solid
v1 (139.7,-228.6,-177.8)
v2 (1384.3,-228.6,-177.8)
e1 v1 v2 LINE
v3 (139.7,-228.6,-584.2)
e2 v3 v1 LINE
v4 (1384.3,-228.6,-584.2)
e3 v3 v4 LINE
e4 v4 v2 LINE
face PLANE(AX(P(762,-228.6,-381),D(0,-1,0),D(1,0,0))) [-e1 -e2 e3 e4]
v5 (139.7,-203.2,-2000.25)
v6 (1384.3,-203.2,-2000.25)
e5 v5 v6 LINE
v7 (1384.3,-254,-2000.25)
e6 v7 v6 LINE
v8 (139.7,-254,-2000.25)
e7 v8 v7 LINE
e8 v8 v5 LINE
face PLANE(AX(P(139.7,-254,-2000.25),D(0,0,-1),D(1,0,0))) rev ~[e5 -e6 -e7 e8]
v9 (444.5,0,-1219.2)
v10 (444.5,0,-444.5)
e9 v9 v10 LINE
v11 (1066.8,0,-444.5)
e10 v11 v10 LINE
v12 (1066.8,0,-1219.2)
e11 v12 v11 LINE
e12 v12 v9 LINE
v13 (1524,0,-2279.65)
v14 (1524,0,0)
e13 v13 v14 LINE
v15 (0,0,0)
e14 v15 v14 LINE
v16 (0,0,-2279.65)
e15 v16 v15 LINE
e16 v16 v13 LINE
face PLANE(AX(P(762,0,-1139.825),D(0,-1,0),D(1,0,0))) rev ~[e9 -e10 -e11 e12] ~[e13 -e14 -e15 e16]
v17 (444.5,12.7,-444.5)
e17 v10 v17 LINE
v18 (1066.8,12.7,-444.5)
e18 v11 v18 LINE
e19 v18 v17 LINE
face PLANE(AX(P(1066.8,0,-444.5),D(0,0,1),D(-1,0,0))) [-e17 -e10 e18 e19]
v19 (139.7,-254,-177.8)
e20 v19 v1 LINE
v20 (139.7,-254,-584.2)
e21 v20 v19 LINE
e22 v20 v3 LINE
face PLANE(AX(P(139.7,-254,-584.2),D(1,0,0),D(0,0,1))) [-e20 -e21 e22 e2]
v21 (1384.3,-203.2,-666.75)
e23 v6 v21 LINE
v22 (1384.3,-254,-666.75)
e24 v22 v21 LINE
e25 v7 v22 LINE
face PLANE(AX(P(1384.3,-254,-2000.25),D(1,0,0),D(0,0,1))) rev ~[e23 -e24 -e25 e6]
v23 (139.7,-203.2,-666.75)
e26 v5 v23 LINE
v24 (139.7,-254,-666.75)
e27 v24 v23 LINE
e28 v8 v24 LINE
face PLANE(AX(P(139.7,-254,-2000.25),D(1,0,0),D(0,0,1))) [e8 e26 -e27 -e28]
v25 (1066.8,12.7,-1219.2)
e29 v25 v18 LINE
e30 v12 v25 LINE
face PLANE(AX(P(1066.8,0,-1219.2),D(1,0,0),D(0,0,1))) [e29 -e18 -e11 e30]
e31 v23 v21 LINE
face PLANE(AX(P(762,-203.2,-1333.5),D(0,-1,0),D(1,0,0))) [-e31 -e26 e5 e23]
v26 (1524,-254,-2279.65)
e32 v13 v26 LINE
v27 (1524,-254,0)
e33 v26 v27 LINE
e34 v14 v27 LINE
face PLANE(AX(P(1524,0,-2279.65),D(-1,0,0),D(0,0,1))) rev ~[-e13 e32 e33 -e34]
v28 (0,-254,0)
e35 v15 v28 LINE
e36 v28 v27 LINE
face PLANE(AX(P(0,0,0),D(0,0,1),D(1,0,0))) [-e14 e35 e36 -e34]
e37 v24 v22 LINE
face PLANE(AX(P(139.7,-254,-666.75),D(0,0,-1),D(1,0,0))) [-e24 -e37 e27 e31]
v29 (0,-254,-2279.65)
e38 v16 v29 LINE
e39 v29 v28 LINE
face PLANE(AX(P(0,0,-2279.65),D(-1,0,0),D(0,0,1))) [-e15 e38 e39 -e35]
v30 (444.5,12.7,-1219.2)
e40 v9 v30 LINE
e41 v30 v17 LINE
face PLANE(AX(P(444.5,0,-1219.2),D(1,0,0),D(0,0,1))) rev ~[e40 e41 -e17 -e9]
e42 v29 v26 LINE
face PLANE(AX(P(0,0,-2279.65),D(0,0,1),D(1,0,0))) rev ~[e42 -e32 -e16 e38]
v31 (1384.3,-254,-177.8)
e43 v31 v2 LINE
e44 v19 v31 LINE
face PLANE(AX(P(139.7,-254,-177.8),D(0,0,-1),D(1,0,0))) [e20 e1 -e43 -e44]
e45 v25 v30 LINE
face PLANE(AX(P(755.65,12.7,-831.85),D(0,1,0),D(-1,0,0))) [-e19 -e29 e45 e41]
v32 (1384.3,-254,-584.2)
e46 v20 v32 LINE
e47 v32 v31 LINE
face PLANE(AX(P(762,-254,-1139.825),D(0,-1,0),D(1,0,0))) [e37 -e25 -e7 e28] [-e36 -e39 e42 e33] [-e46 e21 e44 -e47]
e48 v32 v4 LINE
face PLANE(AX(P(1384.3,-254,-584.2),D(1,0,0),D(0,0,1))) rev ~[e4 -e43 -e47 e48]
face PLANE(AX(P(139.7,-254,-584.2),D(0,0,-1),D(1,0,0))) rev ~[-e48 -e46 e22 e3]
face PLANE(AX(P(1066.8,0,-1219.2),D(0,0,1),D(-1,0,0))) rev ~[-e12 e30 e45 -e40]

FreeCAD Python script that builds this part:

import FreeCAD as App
import Part
import Sketcher
Q = App.Units.Quantity

doc = App.newDocument("Part")
body = doc.addObject("PartDesign::Body", "Body")

# Sketch on XZ plane
sketch1 = body.newObject("Sketcher::SketchObject", "Sketch")
sketch1.AttachmentSupport = (doc.getObject("XZ_Plane"), [""])
sketch1.MapMode = "FlatFace"
sketch1.addGeometry(Part.LineSegment(App.Vector(0, 0, 0), App.Vector(0, -2280, 0)), False)
sketch1.addGeometry(Part.LineSegment(App.Vector(0, -2280, 0), App.Vector(1524, -2280, 0)), False)
sketch1.addGeometry(Part.LineSegment(App.Vector(1524, -2280, 0), App.Vector(1524, 0, 0)), False)
sketch1.addGeometry(Part.LineSegment(App.Vector(1524, 0, 0), App.Vector(0, 0, 0)), False)
sketch1.addConstraint(Sketcher.Constraint("Coincident", 0, 2, 1, 1))
sketch1.addConstraint(Sketcher.Constraint("Coincident", 1, 2, 2, 1))
sketch1.addConstraint(Sketcher.Constraint("Coincident", 2, 2, 3, 1))
sketch1.addConstraint(Sketcher.Constraint("Coincident", 3, 2, 0, 1))
sketch1.addConstraint(Sketcher.Constraint("Vertical", 0))
sketch1.addConstraint(Sketcher.Constraint("Horizontal", 1))
sketch1.addConstraint(Sketcher.Constraint("Vertical", 2))
sketch1.addConstraint(Sketcher.Constraint("Horizontal", 3))
sketch1.addConstraint(Sketcher.Constraint("Coincident", 3, 2, -1, 1))
sketch1.addConstraint(Sketcher.Constraint("DistanceX", 1, 1, 1, 2, Q("60 in")))
sketch1.addConstraint(Sketcher.Constraint("DistanceY", 0, 2, 0, 1, Q("89.75 in")))
pad1 = body.newObject("PartDesign::Pad", "Pad")
pad1.Profile = sketch1
pad1.Length = Q("10 in")

# Sketch on XZ plane
sketch2 = body.newObject("Sketcher::SketchObject", "Sketch001")
sketch2.AttachmentSupport = (doc.getObject("XZ_Plane"), [""])
sketch2.MapMode = "FlatFace"
sketch2.AttachmentOffset = App.Placement(App.Vector(0, 0, 10 * 25.4), App.Rotation())
sketch2.addGeometry(Part.LineSegment(App.Vector(140, -178, 0), App.Vector(140, -584, 0)), False)
sketch2.addGeometry(Part.LineSegment(App.Vector(140, -584, 0), App.Vector(1384, -584, 0)), False)
sketch2.addGeometry(Part.LineSegment(App.Vector(1384, -584, 0), App.Vector(1384, -178, 0)), False)
sketch2.addGeometry(Part.LineSegment(App.Vector(1384, -178, 0), App.Vector(140, -178, 0)), False)
sketch2.addConstraint(Sketcher.Constraint("Coincident", 0, 2, 1, 1))
sketch2.addConstraint(Sketcher.Constraint("Coincident", 1, 2, 2, 1))
sketch2.addConstraint(Sketcher.Constraint("Coincident", 2, 2, 3, 1))
sketch2.addConstraint(Sketcher.Constraint("Coincident", 3, 2, 0, 1))
sketch2.addConstraint(Sketcher.Constraint("Vertical", 0))
sketch2.addConstraint(Sketcher.Constraint("Horizontal", 1))
sketch2.addConstraint(Sketcher.Constraint("Vertical", 2))
sketch2.addConstraint(Sketcher.Constraint("Horizontal", 3))
sketch2.addConstraint(Sketcher.Constraint("DistanceX", 1, 1, 1, 2, Q("49 in")))
sketch2.addConstraint(Sketcher.Constraint("DistanceY", 0, 2, 0, 1, Q("16 in")))
sketch2.addConstraint(Sketcher.Constraint("DistanceY", 0, 2, -1, 1, Q("23 in")))
sketch2.addConstraint(Sketcher.Constraint("DistanceX", -1, 1, 0, 2, Q("5.5 in")))
pocket1 = body.newObject("PartDesign::Pocket", "Pocket")
pocket1.Profile = sketch2
pocket1.Length = Q("1 in")

# Sketch on XZ plane
sketch3 = body.newObject("Sketcher::SketchObject", "Sketch002")
sketch3.AttachmentSupport = (doc.getObject("XZ_Plane"), [""])
sketch3.MapMode = "FlatFace"
sketch3.AttachmentOffset = App.Placement(App.Vector(0, 0, 10 * 25.4), App.Rotation())
sketch3.addGeometry(Part.LineSegment(App.Vector(140, -667, 0), App.Vector(140, -2000, 0)), False)
sketch3.addGeometry(Part.LineSegment(App.Vector(140, -2000, 0), App.Vector(1384, -2000, 0)), False)
sketch3.addGeometry(Part.LineSegment(App.Vector(1384, -2000, 0), App.Vector(1384, -667, 0)), False)
sketch3.addGeometry(Part.LineSegment(App.Vector(1384, -667, 0), App.Vector(140, -667, 0)), False)
sketch3.addConstraint(Sketcher.Constraint("Coincident", 0, 2, 1, 1))
sketch3.addConstraint(Sketcher.Constraint("Coincident", 1, 2, 2, 1))
sketch3.addConstraint(Sketcher.Constraint("Coincident", 2, 2, 3, 1))
sketch3.addConstraint(Sketcher.Constraint("Coincident", 3, 2, 0, 1))
sketch3.addConstraint(Sketcher.Constraint("Vertical", 0))
sketch3.addConstraint(Sketcher.Constraint("Horizontal", 1))
sketch3.addConstraint(Sketcher.Constraint("Vertical", 2))
sketch3.addConstraint(Sketcher.Constraint("Horizontal", 3))
sketch3.addConstraint(Sketcher.Constraint("DistanceX", 1, 1, 1, 2, Q("49 in")))
sketch3.addConstraint(Sketcher.Constraint("DistanceY", 0, 2, 0, 1, Q("52.5 in")))
sketch3.addConstraint(Sketcher.Constraint("DistanceX", -1, 1, 0, 2, Q("5.5 in")))
sketch3.addConstraint(Sketcher.Constraint("DistanceY", 0, 2, -1, 1, Q("78.75 in")))
pocket2 = body.newObject("PartDesign::Pocket", "Pocket001")
pocket2.Profile = sketch3
pocket2.Length = Q("2 in")

# Sketch on XZ plane
sketch4 = body.newObject("Sketcher::SketchObject", "Sketch003")
sketch4.AttachmentSupport = (doc.getObject("XZ_Plane"), [""])
sketch4.MapMode = "FlatFace"
sketch4.addGeometry(Part.LineSegment(App.Vector(1067, -444, 0), App.Vector(1067, -1219, 0)), False)
sketch4.addGeometry(Part.LineSegment(App.Vector(1067, -1219, 0), App.Vector(444, -1219, 0)), False)
sketch4.addGeometry(Part.LineSegment(App.Vector(444, -1219, 0), App.Vector(444, -444, 0)), False)
sketch4.addGeometry(Part.LineSegment(App.Vector(444, -444, 0), App.Vector(1067, -444, 0)), False)
sketch4.addConstraint(Sketcher.Constraint("Coincident", 0, 2, 1, 1))
sketch4.addConstraint(Sketcher.Constraint("Coincident", 1, 2, 2, 1))
sketch4.addConstraint(Sketcher.Constraint("Coincident", 2, 2, 3, 1))
sketch4.addConstraint(Sketcher.Constraint("Coincident", 3, 2, 0, 1))
sketch4.addConstraint(Sketcher.Constraint("Vertical", 0))
sketch4.addConstraint(Sketcher.Constraint("Horizontal", 1))
sketch4.addConstraint(Sketcher.Constraint("Vertical", 2))
sketch4.addConstraint(Sketcher.Constraint("Horizontal", 3))
sketch4.addConstraint(Sketcher.Constraint("DistanceX", 1, 2, 1, 1, Q("24.5 in")))
sketch4.addConstraint(Sketcher.Constraint("DistanceY", 0, 2, 0, 1, Q("30.5 in")))
sketch4.addConstraint(Sketcher.Constraint("DistanceX", -1, 1, 0, 2, Q("42 in")))
sketch4.addConstraint(Sketcher.Constraint("DistanceY", 0, 2, -1, 1, Q("48 in")))
pad2 = body.newObject("PartDesign::Pad", "Pad001")
pad2.Profile = sketch4
pad2.Length = Q("0.5 in")
pad2.Reversed = True

doc.recompute()
